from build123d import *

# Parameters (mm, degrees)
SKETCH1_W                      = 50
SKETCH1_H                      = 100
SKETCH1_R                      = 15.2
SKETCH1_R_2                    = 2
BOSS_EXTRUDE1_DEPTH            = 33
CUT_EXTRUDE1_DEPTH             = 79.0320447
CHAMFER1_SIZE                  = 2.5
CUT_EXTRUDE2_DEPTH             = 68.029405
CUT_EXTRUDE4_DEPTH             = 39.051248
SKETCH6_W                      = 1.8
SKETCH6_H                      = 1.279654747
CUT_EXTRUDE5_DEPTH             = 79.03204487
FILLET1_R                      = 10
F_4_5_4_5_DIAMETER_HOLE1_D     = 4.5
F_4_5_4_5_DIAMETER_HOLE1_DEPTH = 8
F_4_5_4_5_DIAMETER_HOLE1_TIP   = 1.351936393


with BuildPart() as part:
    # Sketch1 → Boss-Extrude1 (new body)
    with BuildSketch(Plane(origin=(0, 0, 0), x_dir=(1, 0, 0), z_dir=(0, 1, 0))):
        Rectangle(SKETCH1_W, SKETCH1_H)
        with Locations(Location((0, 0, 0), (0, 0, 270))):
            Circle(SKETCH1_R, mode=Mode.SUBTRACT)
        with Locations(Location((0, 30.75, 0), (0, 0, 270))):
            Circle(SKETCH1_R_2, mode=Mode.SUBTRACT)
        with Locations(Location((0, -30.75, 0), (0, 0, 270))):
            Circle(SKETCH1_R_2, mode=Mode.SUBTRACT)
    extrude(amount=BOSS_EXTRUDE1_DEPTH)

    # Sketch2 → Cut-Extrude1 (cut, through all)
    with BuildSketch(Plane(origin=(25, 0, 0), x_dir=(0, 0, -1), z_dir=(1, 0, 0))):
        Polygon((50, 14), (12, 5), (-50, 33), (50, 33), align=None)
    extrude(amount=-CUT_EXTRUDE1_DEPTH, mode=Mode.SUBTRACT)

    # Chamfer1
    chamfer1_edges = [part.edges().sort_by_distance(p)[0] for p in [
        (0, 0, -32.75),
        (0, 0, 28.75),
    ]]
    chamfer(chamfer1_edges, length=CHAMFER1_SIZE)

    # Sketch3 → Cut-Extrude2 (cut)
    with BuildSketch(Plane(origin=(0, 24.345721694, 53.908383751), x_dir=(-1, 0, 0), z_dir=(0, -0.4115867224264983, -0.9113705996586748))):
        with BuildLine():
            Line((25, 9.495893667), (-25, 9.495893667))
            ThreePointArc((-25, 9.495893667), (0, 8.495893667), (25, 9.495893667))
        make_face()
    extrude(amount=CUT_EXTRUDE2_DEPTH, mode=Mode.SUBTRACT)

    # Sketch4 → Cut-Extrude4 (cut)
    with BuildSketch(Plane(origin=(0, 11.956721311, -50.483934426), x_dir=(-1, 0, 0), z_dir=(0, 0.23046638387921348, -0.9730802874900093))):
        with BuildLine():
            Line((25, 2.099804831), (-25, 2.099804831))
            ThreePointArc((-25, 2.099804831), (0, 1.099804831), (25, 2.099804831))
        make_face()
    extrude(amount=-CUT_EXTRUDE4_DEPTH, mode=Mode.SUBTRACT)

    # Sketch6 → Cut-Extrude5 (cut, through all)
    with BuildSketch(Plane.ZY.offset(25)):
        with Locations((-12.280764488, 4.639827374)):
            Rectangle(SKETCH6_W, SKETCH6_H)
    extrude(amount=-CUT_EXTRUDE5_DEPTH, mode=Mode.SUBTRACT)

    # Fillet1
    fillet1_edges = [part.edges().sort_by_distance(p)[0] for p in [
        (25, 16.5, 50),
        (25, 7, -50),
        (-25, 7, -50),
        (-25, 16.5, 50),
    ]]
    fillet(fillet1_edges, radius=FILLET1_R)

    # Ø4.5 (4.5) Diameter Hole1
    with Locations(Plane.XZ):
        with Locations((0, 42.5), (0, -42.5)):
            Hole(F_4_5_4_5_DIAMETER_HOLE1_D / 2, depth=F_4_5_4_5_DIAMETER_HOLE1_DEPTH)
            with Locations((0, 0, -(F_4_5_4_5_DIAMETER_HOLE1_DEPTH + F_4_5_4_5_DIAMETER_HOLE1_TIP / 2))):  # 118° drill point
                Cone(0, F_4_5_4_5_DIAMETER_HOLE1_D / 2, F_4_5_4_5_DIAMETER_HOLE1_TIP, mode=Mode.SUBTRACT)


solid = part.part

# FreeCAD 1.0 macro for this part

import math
import FreeCAD as App
import Part
import Sketcher
from FreeCAD import Vector
Q = App.Units.Quantity


def edges_at(feature, points):
    """Names of the edges that pass closest to the given points."""
    edges = feature.Shape.Edges
    near = lambda p: min(range(len(edges)), key=lambda i: edges[i].distToShape(Part.Vertex(*p))[0])
    return sorted({f"Edge{near(p) + 1}" for p in points})


def add_polygon(sketch, points):
    """Adds a closed chain of lines whose ends are joined by coincident constraints."""
    first, n = sketch.GeometryCount, len(points)
    for a, b in zip(points, points[1:] + points[:1]):
        sketch.addGeometry(Part.LineSegment(App.Vector(*a, 0), App.Vector(*b, 0)), False)
    for i in range(n):
        sketch.addConstraint(Sketcher.Constraint("Coincident", first + i, 2, first + (i + 1) % n, 1))

doc = App.newDocument("Part")
body = doc.addObject("PartDesign::Body", "Body")

sketch1 = doc.addObject("Sketcher::SketchObject", "Sketch")
body.addObject(sketch1)
sketch1.AttachmentSupport = (doc.XZ_Plane, [""])
sketch1.MapMode = "FlatFace"
add_polygon(sketch1, [(-25, -50), (-25, 50), (25, 50), (25, -50)])
sketch1.addGeometry(Part.Circle(Vector(0, 30.8, 0), Vector(0, 0, 1), 2), False)
sketch1.addGeometry(Part.Circle(Vector(0, 0, 0), Vector(0, 0, 1), 15.2), False)
sketch1.addGeometry(Part.Circle(Vector(0, -30.8, 0), Vector(0, 0, 1), 2), False)
sketch1.addConstraint(Sketcher.Constraint("Vertical", 0))
sketch1.addConstraint(Sketcher.Constraint("Horizontal", 1))
sketch1.addConstraint(Sketcher.Constraint("Vertical", 2))
sketch1.addConstraint(Sketcher.Constraint("Horizontal", 3))
sketch1.addConstraint(Sketcher.Constraint("Coincident", 5, 3, -1, 1))
sketch1.addConstraint(Sketcher.Constraint("Equal", 4, 6))
sketch1.addConstraint(Sketcher.Constraint("Symmetric", 4, 3, 6, 3, -1, 1))
sketch1.addConstraint(Sketcher.Constraint("Symmetric", 0, 2, 2, 2, -1, 1))
sketch1.addConstraint(Sketcher.Constraint("PointOnObject", 4, 3, -2))
sketch1.addConstraint(Sketcher.Constraint("Diameter", 4, Q("4 mm")))
sketch1.addConstraint(Sketcher.Constraint("Diameter", 5, Q("30.4 mm")))
sketch1.addConstraint(Sketcher.Constraint("DistanceX", 1, 1, 1, 2, Q("50 mm")))
sketch1.addConstraint(Sketcher.Constraint("DistanceY", 0, 1, 0, 2, Q("100 mm")))
sketch1.addConstraint(Sketcher.Constraint("DistanceY", 6, 3, 4, 3, Q("61.5 mm")))
pad1 = doc.addObject("PartDesign::Pad", "Pad")
body.addObject(pad1)
pad1.Profile = sketch1
pad1.Length = 33
pad1.Reversed = True

sketch2 = doc.addObject("Sketcher::SketchObject", "Sketch001")
body.addObject(sketch2)
sketch2.AttachmentSupport = (doc.YZ_Plane, [""])
sketch2.MapMode = "FlatFace"
sketch2.AttachmentOffset = App.Placement(Vector(0, 0, 25), App.Rotation())
add_polygon(sketch2, [(5, -12), (14, -50), (33, -50), (33, 50)])
sketch2.addConstraint(Sketcher.Constraint("Horizontal", 1))
sketch2.addConstraint(Sketcher.Constraint("Vertical", 2))
sketch2.addConstraint(Sketcher.Constraint("DistanceX", 1, 1, 1, 2, Q("19 mm")))
sketch2.addConstraint(Sketcher.Constraint("DistanceY", 2, 1, 2, 2, Q("100 mm")))
sketch2.addConstraint(Sketcher.Constraint("DistanceX", -1, 1, 0, 2, Q("14 mm")))
sketch2.addConstraint(Sketcher.Constraint("DistanceY", 0, 2, -1, 1, Q("50 mm")))
sketch2.addConstraint(Sketcher.Constraint("DistanceX", -1, 1, 3, 2, Q("5 mm")))
sketch2.addConstraint(Sketcher.Constraint("DistanceY", 3, 2, -1, 1, Q("12 mm")))
pocket1 = doc.addObject("PartDesign::Pocket", "Pocket")
body.addObject(pocket1)
pocket1.Profile = sketch2
pocket1.Type = "ThroughAll"
doc.recompute()

chamfer = doc.addObject("PartDesign::Chamfer", "Chamfer")
body.addObject(chamfer)
chamfer.Base = (pocket1, edges_at(pocket1, [(0, 0, -32.75), (0, 0, 28.75)]))
chamfer.Size = 2.5

sketch3 = doc.addObject("Sketcher::SketchObject", "Sketch002")
body.addObject(sketch3)
sketch3.Placement = App.Placement(Vector(0, 24.345722, 53.908384), App.Rotation(Vector(-1, 0, 0), Vector(0, 0.9113706, -0.411586722), Vector(0, -0.411586722, -0.9113706), "ZXY"))
sketch3.addGeometry(Part.LineSegment(Vector(25, 9, 0), Vector(-25, 9, 0)), False)
sketch3.addGeometry(Part.ArcOfCircle(Part.Circle(Vector(0, 321, 0), Vector(0, 0, 1), 313), math.radians(-94.58), math.radians(-85.42)), False)
sketch3.addConstraint(Sketcher.Constraint("Coincident", 0, 1, 1, 2))
sketch3.addConstraint(Sketcher.Constraint("Coincident", 1, 1, 0, 2))
sketch3.addConstraint(Sketcher.Constraint("Horizontal", 0))
sketch3.addConstraint(Sketcher.Constraint("PointOnObject", 1, 3, -2))
sketch3.addConstraint(Sketcher.Constraint("Radius", 1, Q("313 mm")))
sketch3.addConstraint(Sketcher.Constraint("DistanceX", 0, 2, 0, 1, Q("50 mm")))
sketch3.addConstraint(Sketcher.Constraint("DistanceY", -1, 1, 1, 3, Q("321.495894 mm")))
pocket2 = doc.addObject("PartDesign::Pocket", "Pocket001")
body.addObject(pocket2)
pocket2.Profile = sketch3
pocket2.Length = 68.029405
pocket2.Reversed = True

sketch4 = doc.addObject("Sketcher::SketchObject", "Sketch003")
body.addObject(sketch4)
sketch4.Placement = App.Placement(Vector(0, 11.956721, -50.483934), App.Rotation(Vector(-1, 0, 0), Vector(0, 0.973080287, 0.230466384), Vector(0, 0.230466384, -0.973080287), "ZXY"))
sketch4.addGeometry(Part.LineSegment(Vector(25, 2, 0), Vector(-25, 2, 0)), False)
sketch4.addGeometry(Part.ArcOfCircle(Part.Circle(Vector(0, 314, 0), Vector(0, 0, 1), 313), math.radians(-94.58), math.radians(-85.42)), False)
sketch4.addConstraint(Sketcher.Constraint("Coincident", 0, 1, 1, 2))
sketch4.addConstraint(Sketcher.Constraint("Coincident", 1, 1, 0, 2))
sketch4.addConstraint(Sketcher.Constraint("Horizontal", 0))
sketch4.addConstraint(Sketcher.Constraint("PointOnObject", 1, 3, -2))
sketch4.addConstraint(Sketcher.Constraint("Radius", 1, Q("313 mm")))
sketch4.addConstraint(Sketcher.Constraint("DistanceX", 0, 2, 0, 1, Q("50 mm")))
sketch4.addConstraint(Sketcher.Constraint("DistanceY", -1, 1, 1, 3, Q("314.099805 mm")))
pocket3 = doc.addObject("PartDesign::Pocket", "Pocket002")
body.addObject(pocket3)
pocket3.Profile = sketch4
pocket3.Length = 39.051248

sketch5 = doc.addObject("Sketcher::SketchObject", "Sketch004")
body.addObject(sketch5)
sketch5.AttachmentSupport = (doc.YZ_Plane, [""])
sketch5.MapMode = "FlatFace"
sketch5.AttachmentOffset = App.Placement(Vector(0, 0, -25), App.Rotation())
add_polygon(sketch5, [(5.3, -13.2), (4, -13.2), (4, -11.4), (5.3, -11.4)])
sketch5.addConstraint(Sketcher.Constraint("Horizontal", 0))
sketch5.addConstraint(Sketcher.Constraint("Vertical", 1))
sketch5.addConstraint(Sketcher.Constraint("Horizontal", 2))
sketch5.addConstraint(Sketcher.Constraint("Vertical", 3))
sketch5.addConstraint(Sketcher.Constraint("DistanceY", 1, 1, 1, 2, Q("1.8 mm")))
sketch5.addConstraint(Sketcher.Constraint("DistanceX", -1, 1, 0, 2, Q("4 mm")))
sketch5.addConstraint(Sketcher.Constraint("DistanceX", 0, 2, 0, 1, Q("1.279655 mm")))
sketch5.addConstraint(Sketcher.Constraint("DistanceY", 0, 2, -1, 1, Q("13.180764 mm")))
pocket4 = doc.addObject("PartDesign::Pocket", "Pocket003")
body.addObject(pocket4)
pocket4.Profile = sketch5
pocket4.Type = "ThroughAll"
pocket4.Reversed = True
doc.recompute()

fillet = doc.addObject("PartDesign::Fillet", "Fillet")
body.addObject(fillet)
fillet.Base = (pocket4, edges_at(pocket4, [
    (25, 16.5, 50),
    (25, 7, -50),
    (-25, 7, -50),
    (-25, 16.5, 50),
]))
fillet.Radius = 10

sketch6 = doc.addObject("Sketcher::SketchObject", "Sketch005")
body.addObject(sketch6)
sketch6.AttachmentSupport = (doc.XZ_Plane, [""])
sketch6.MapMode = "FlatFace"
sketch6.addGeometry(Part.Circle(Vector(0, 42.5, 0), Vector(0, 0, 1), 2.2), False)
sketch6.addGeometry(Part.Circle(Vector(0, -42.5, 0), Vector(0, 0, 1), 2.2), False)
sketch6.addConstraint(Sketcher.Constraint("Equal", 0, 1))
sketch6.addConstraint(Sketcher.Constraint("Symmetric", 0, 3, 1, 3, -1, 1))
sketch6.addConstraint(Sketcher.Constraint("PointOnObject", 0, 3, -2))
sketch6.addConstraint(Sketcher.Constraint("Diameter", 0, Q("4.5 mm")))
sketch6.addConstraint(Sketcher.Constraint("DistanceY", 1, 3, 0, 3, Q("85 mm")))
doc.recompute()
hole = doc.addObject("PartDesign::Hole", "Hole")
body.addObject(hole)
hole.Profile = sketch6
hole.ThreadType = "None"
hole.Diameter = 4.5
hole.DepthType = "Dimension"
hole.Depth = 8
hole.DrillPoint = "Angled"
hole.DrillPointAngle = 118

doc.recompute()
